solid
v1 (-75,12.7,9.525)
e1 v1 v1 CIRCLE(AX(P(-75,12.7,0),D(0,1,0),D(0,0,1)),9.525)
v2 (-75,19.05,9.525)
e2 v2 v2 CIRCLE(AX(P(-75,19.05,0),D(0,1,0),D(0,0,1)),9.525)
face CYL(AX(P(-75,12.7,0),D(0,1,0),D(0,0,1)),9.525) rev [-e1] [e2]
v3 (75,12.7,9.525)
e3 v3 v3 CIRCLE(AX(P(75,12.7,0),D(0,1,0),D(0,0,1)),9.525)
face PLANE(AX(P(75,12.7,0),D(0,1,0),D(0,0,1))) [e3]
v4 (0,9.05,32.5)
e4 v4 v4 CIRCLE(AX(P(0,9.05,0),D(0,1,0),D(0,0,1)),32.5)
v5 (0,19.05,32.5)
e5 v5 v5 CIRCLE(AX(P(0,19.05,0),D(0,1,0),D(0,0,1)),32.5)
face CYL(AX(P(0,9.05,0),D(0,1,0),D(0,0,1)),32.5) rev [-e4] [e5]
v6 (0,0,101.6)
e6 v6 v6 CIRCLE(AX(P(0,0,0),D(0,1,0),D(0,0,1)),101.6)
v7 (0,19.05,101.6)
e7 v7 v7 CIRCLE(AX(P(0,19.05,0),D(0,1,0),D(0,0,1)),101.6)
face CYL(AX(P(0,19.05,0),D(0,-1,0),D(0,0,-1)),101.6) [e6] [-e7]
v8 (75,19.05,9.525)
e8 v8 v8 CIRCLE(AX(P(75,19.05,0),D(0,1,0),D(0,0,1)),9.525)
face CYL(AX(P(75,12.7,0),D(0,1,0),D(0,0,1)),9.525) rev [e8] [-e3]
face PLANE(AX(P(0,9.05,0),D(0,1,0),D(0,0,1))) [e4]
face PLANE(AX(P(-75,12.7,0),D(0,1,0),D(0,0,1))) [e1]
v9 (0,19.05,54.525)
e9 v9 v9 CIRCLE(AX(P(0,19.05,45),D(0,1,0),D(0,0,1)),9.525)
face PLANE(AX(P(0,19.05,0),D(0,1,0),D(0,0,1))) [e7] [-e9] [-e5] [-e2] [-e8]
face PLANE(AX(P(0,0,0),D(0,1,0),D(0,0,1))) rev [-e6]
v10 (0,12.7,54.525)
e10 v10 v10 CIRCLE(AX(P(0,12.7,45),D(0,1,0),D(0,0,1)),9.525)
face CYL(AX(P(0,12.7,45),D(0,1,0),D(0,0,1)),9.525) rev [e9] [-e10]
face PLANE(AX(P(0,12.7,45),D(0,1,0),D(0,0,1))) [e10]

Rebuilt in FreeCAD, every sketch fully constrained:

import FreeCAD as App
import Part
import Sketcher

V = App.Vector
Q = App.Units.Quantity

doc = App.newDocument("Part")
body = doc.addObject("PartDesign::Body", "Body")

# Sketch on XZ plane
sketch1 = doc.addObject("Sketcher::SketchObject", "Sketch")
body.addObject(sketch1)
sketch1.AttachmentSupport = (doc.XZ_Plane, [""])
sketch1.MapMode = "FlatFace"
sketch1.addGeometry(Part.Circle(V(0, 0, 0), V(0, 0, 1), 102), False)
sketch1.addConstraint([
    Sketcher.Constraint("Coincident", 0, 3, -1, 1),
    Sketcher.Constraint("Diameter", 0, Q("8 in")),
])
pad1 = doc.addObject("PartDesign::Pad", "Pad")
body.addObject(pad1)
pad1.Profile = sketch1
pad1.Length = Q("0.75 in")
pad1.Reversed = True

# Sketch on XZ plane
sketch2 = doc.addObject("Sketcher::SketchObject", "Sketch001")
body.addObject(sketch2)
sketch2.AttachmentSupport = (doc.XZ_Plane, [""])
sketch2.MapMode = "FlatFace"
sketch2.AttachmentOffset = App.Placement(V(0, 0, -0.75 * 25.4), App.Rotation())
sketch2.addGeometry(Part.Circle(V(0, 0, 0), V(0, 0, 1), 32), False)
sketch2.addConstraint([
    Sketcher.Constraint("Coincident", 0, 3, -1, 1),
    Sketcher.Constraint("Diameter", 0, Q("65 mm")),
])
pocket1 = doc.addObject("PartDesign::Pocket", "Pocket")
body.addObject(pocket1)
pocket1.Profile = sketch2
pocket1.Length = 10
pocket1.Reversed = True

# Sketch on XZ plane
sketch3 = doc.addObject("Sketcher::SketchObject", "Sketch002")
body.addObject(sketch3)
sketch3.AttachmentSupport = (doc.XZ_Plane, [""])
sketch3.MapMode = "FlatFace"
sketch3.AttachmentOffset = App.Placement(V(0, 0, -0.75 * 25.4), App.Rotation())
sketch3.addGeometry(Part.Circle(V(-75, 0, 0), V(0, 0, 1), 10), False)
sketch3.addConstraint([
    Sketcher.Constraint("PointOnObject", 0, 3, -1),
    Sketcher.Constraint("Diameter", 0, Q("0.75 in")),
    Sketcher.Constraint("DistanceX", 0, 3, -1, 1, Q("75 mm")),
])
pocket2 = doc.addObject("PartDesign::Pocket", "Pocket001")
body.addObject(pocket2)
pocket2.Profile = sketch3
pocket2.Length = Q("0.25 in")
pocket2.Reversed = True

# Sketch on XZ plane
sketch4 = doc.addObject("Sketcher::SketchObject", "Sketch003")
body.addObject(sketch4)
sketch4.AttachmentSupport = (doc.XZ_Plane, [""])
sketch4.MapMode = "FlatFace"
sketch4.AttachmentOffset = App.Placement(V(0, 0, -0.75 * 25.4), App.Rotation())
sketch4.addGeometry(Part.Circle(V(75, 0, 0), V(0, 0, 1), 10), False)
sketch4.addConstraint([
    Sketcher.Constraint("PointOnObject", 0, 3, -1),
    Sketcher.Constraint("Diameter", 0, Q("0.75 in")),
    Sketcher.Constraint("DistanceX", -1, 1, 0, 3, Q("75 mm")),
])
pocket3 = doc.addObject("PartDesign::Pocket", "Pocket002")
body.addObject(pocket3)
pocket3.Profile = sketch4
pocket3.Length = Q("0.25 in")
pocket3.Reversed = True

# Sketch on XZ plane
sketch5 = doc.addObject("Sketcher::SketchObject", "Sketch004")
body.addObject(sketch5)
sketch5.AttachmentSupport = (doc.XZ_Plane, [""])
sketch5.MapMode = "FlatFace"
sketch5.AttachmentOffset = App.Placement(V(0, 0, -0.75 * 25.4), App.Rotation())
sketch5.addGeometry(Part.Circle(V(0, 45, 0), V(0, 0, 1), 10), False)
sketch5.addConstraint([
    Sketcher.Constraint("PointOnObject", 0, 3, -2),
    Sketcher.Constraint("Diameter", 0, Q("0.75 in")),
    Sketcher.Constraint("DistanceY", -1, 1, 0, 3, Q("45 mm")),
])
pocket4 = doc.addObject("PartDesign::Pocket", "Pocket003")
body.addObject(pocket4)
pocket4.Profile = sketch5
pocket4.Length = Q("0.25 in")
pocket4.Reversed = True

doc.recompute()
